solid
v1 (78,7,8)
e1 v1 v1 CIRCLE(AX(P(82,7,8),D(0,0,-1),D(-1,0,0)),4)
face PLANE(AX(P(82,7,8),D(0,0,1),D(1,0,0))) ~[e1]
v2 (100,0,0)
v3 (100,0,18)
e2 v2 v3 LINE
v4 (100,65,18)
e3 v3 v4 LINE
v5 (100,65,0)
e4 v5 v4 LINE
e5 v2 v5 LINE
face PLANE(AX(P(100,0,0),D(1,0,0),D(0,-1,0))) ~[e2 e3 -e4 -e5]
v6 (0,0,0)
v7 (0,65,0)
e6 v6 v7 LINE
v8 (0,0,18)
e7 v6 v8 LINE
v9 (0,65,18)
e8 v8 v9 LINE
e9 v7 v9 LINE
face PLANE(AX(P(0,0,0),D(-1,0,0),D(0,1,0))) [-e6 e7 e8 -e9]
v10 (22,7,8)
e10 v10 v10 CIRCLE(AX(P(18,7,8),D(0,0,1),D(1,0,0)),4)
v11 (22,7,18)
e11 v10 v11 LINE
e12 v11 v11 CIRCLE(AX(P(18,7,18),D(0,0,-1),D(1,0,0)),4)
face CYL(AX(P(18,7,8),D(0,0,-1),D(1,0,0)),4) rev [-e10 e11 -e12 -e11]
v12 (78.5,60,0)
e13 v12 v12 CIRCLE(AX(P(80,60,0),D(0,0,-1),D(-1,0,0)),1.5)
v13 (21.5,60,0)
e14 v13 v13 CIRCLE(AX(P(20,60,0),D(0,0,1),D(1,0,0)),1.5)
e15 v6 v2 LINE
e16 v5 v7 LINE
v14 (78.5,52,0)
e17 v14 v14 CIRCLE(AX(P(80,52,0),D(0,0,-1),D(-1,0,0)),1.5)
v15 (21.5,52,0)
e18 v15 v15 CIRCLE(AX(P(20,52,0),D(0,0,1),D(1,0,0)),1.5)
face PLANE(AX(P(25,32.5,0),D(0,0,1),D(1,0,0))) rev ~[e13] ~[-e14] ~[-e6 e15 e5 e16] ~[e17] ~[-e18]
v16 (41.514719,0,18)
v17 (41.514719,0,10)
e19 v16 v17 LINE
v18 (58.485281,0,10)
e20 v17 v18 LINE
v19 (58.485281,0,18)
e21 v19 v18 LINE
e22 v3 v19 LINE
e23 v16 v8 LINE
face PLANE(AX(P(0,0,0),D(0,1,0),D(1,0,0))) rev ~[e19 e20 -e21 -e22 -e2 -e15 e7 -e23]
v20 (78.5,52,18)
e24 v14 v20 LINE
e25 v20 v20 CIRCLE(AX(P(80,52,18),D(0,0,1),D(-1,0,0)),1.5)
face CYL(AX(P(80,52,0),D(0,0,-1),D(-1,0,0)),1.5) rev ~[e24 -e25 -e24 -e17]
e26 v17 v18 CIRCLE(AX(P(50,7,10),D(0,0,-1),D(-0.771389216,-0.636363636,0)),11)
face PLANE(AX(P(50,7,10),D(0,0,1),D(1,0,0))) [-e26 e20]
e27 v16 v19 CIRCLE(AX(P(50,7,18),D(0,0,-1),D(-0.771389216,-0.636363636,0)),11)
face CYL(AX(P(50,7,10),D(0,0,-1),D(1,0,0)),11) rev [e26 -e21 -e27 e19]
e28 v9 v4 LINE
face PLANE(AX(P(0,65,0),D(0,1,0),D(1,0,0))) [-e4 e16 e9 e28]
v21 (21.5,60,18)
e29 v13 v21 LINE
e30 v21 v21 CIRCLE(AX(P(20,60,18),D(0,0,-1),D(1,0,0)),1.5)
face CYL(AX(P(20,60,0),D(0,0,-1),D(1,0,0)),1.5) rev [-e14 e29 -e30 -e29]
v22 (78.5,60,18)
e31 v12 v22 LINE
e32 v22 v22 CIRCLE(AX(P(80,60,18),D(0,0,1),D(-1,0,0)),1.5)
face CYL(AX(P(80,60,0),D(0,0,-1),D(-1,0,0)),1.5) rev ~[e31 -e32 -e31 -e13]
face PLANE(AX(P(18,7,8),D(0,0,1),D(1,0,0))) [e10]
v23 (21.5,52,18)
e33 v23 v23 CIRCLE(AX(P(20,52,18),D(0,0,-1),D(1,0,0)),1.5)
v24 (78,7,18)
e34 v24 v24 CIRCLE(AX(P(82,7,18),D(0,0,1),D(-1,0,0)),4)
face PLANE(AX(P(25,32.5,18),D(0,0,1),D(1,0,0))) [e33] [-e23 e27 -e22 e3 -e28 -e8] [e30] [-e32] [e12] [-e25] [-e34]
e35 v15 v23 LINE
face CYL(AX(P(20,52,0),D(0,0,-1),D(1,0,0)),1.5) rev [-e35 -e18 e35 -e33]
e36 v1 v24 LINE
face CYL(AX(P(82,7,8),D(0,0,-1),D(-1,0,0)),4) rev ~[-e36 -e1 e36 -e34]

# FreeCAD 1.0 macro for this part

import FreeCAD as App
import Part
import Sketcher
from FreeCAD import Vector
Q = App.Units.Quantity

doc = App.newDocument("Part")
params = doc.addObject("Spreadsheet::Sheet", "Params")
for row, (alias, value) in enumerate([
    ("sketch1_diameter", "22 mm"),
    ("pad1_length", "15 mm"),
    ("sketch2_diameter", "3 mm"),
    ("pad2_length", "25 mm"),
    ("sketch3_diameter", "8 mm"),
    ("pad3_length", "25 mm"),
    ("sketch4_diameter", "3 mm"),
    ("pad4_length", "25 mm"),
    ("sketch5_width", "50 mm"),
    ("sketch5_height", "65 mm"),
    ("pad5_length", "18 mm"),
], start=1):
    params.set(f"A{row}", alias)
    params.set(f"B{row}", "=" + value)
    params.setAlias(f"B{row}", alias)

body = doc.addObject("PartDesign::Body", "Body")

# Sketch on XY plane
sketch1 = doc.addObject("Sketcher::SketchObject", "Sketch")
body.addObject(sketch1)
sketch1.AttachmentSupport = (doc.XY_Plane, [""])
sketch1.MapMode = "FlatFace"
sketch1.AttachmentOffset = App.Placement(Vector(0, 0, 10), App.Rotation())
sketch1.addGeometry(Part.Circle(Vector(50, 7, 0), Vector(0, 0, 1), 11), False)
sketch1.addConstraint(Sketcher.Constraint("Diameter", 0, Q("22 mm")))
sketch1.addConstraint(Sketcher.Constraint("DistanceX", -1, 1, 0, 3, Q("50 mm")))
sketch1.addConstraint(Sketcher.Constraint("DistanceY", -1, 1, 0, 3, Q("7 mm")))
sketch1.setExpression("Constraints[0]", "Params.sketch1_diameter")
pad1 = doc.addObject("PartDesign::Pad", "Pad")
body.addObject(pad1)
pad1.Profile = sketch1
pad1.setExpression("Length", "Params.pad1_length")
body2 = doc.addObject("PartDesign::Body", "Body001")

# Sketch on XY plane
sketch2 = doc.addObject("Sketcher::SketchObject", "Sketch001")
body2.addObject(sketch2)
sketch2.AttachmentSupport = (doc.getObject("XY_Plane001"), [""])
sketch2.MapMode = "FlatFace"
sketch2.addGeometry(Part.Circle(Vector(20, 52, 0), Vector(0, 0, 1), 1.5), False)
sketch2.addConstraint(Sketcher.Constraint("Diameter", 0, Q("3 mm")))
sketch2.addConstraint(Sketcher.Constraint("DistanceX", -1, 1, 0, 3, Q("20 mm")))
sketch2.addConstraint(Sketcher.Constraint("DistanceY", -1, 1, 0, 3, Q("52 mm")))
sketch2.setExpression("Constraints[0]", "Params.sketch2_diameter")
pad2 = doc.addObject("PartDesign::Pad", "Pad001")
body2.addObject(pad2)
pad2.Profile = sketch2
pad2.setExpression("Length", "Params.pad2_length")
body3 = doc.addObject("PartDesign::Body", "Body002")

# Sketch on XY plane
sketch3 = doc.addObject("Sketcher::SketchObject", "Sketch002")
body3.addObject(sketch3)
sketch3.AttachmentSupport = (doc.getObject("XY_Plane002"), [""])
sketch3.MapMode = "FlatFace"
sketch3.AttachmentOffset = App.Placement(Vector(0, 0, 8), App.Rotation())
sketch3.addGeometry(Part.Circle(Vector(18, 7, 0), Vector(0, 0, 1), 4), False)
sketch3.addConstraint(Sketcher.Constraint("Diameter", 0, Q("8 mm")))
sketch3.addConstraint(Sketcher.Constraint("DistanceX", -1, 1, 0, 3, Q("18 mm")))
sketch3.addConstraint(Sketcher.Constraint("DistanceY", -1, 1, 0, 3, Q("7 mm")))
sketch3.setExpression("Constraints[0]", "Params.sketch3_diameter")
pad3 = doc.addObject("PartDesign::Pad", "Pad002")
body3.addObject(pad3)
pad3.Profile = sketch3
pad3.setExpression("Length", "Params.pad3_length")
body4 = doc.addObject("PartDesign::Body", "Body003")
body4.AllowCompound = True

# Sketch on XY plane
sketch4 = doc.addObject("Sketcher::SketchObject", "Sketch003")
body4.addObject(sketch4)
sketch4.AttachmentSupport = (doc.getObject("XY_Plane003"), [""])
sketch4.MapMode = "FlatFace"
sketch4.addGeometry(Part.Circle(Vector(20, 60, 0), Vector(0, 0, 1), 1.5), False)
sketch4.addConstraint(Sketcher.Constraint("Diameter", 0, Q("3 mm")))
sketch4.addConstraint(Sketcher.Constraint("DistanceX", -1, 1, 0, 3, Q("20 mm")))
sketch4.addConstraint(Sketcher.Constraint("DistanceY", -1, 1, 0, 3, Q("60 mm")))
sketch4.setExpression("Constraints[0]", "Params.sketch4_diameter")
pad4 = doc.addObject("PartDesign::Pad", "Pad003")
body4.addObject(pad4)
pad4.Profile = sketch4
pad4.setExpression("Length", "Params.pad4_length")
doc.recompute()

boolean = doc.addObject("PartDesign::Boolean", "Boolean")
body4.addObject(boolean)
boolean.Type = "Fuse"
boolean.addObjects([body2])
doc.recompute()

boolean2 = doc.addObject("PartDesign::Boolean", "Boolean001")
body4.addObject(boolean2)
boolean2.Type = "Fuse"
boolean2.addObjects([body3])
body5 = doc.addObject("PartDesign::Body", "Body004")

# Sketch on XY plane
sketch5 = doc.addObject("Sketcher::SketchObject", "Sketch004")
body5.addObject(sketch5)
sketch5.AttachmentSupport = (doc.getObject("XY_Plane004"), [""])
sketch5.MapMode = "FlatFace"
sketch5.addGeometry(Part.LineSegment(Vector(0, 65, 0), Vector(0, 0, 0)), False)
sketch5.addGeometry(Part.LineSegment(Vector(0, 0, 0), Vector(50, 0, 0)), False)
sketch5.addGeometry(Part.LineSegment(Vector(50, 0, 0), Vector(50, 65, 0)), False)
sketch5.addGeometry(Part.LineSegment(Vector(50, 65, 0), Vector(0, 65, 0)), False)
sketch5.addConstraint(Sketcher.Constraint("Coincident", 0, 2, 1, 1))
sketch5.addConstraint(Sketcher.Constraint("Coincident", 1, 2, 2, 1))
sketch5.addConstraint(Sketcher.Constraint("Coincident", 2, 2, 3, 1))
sketch5.addConstraint(Sketcher.Constraint("Coincident", 3, 2, 0, 1))
sketch5.addConstraint(Sketcher.Constraint("Vertical", 0))
sketch5.addConstraint(Sketcher.Constraint("Horizontal", 1))
sketch5.addConstraint(Sketcher.Constraint("Vertical", 2))
sketch5.addConstraint(Sketcher.Constraint("Horizontal", 3))
sketch5.addConstraint(Sketcher.Constraint("Coincident", 0, 2, -1, 1))
sketch5.addConstraint(Sketcher.Constraint("DistanceX", 1, 1, 1, 2, Q("50 mm")))
sketch5.addConstraint(Sketcher.Constraint("DistanceY", 0, 2, 0, 1, Q("65 mm")))
sketch5.setExpression("Constraints[9]", "Params.sketch5_width")
sketch5.setExpression("Constraints[10]", "Params.sketch5_height")
pad5 = doc.addObject("PartDesign::Pad", "Pad004")
body5.addObject(pad5)
pad5.Profile = sketch5
pad5.setExpression("Length", "Params.pad5_length")
doc.recompute()

boolean3 = doc.addObject("PartDesign::Boolean", "Boolean002")
body5.addObject(boolean3)
boolean3.Type = "Cut"
boolean3.addObjects([body4])
body6 = doc.addObject("PartDesign::Body", "Body005")
doc.recompute()

mirroring = doc.addObject("Part::Mirroring", "Mirroring")
mirroring.Source = body5
mirroring.Base = Vector(50, 0, 0)
mirroring.Normal = Vector(1, 0, 0)
body6.BaseFeature = mirroring
doc.recompute()

boolean4 = doc.addObject("PartDesign::Boolean", "Boolean003")
body6.addObject(boolean4)
boolean4.Type = "Fuse"
boolean4.addObjects([body5])
doc.recompute()

boolean5 = doc.addObject("PartDesign::Boolean", "Boolean004")
body6.addObject(boolean5)
boolean5.Type = "Cut"
boolean5.addObjects([body])
mirroring.Visibility = False

doc.recompute()
